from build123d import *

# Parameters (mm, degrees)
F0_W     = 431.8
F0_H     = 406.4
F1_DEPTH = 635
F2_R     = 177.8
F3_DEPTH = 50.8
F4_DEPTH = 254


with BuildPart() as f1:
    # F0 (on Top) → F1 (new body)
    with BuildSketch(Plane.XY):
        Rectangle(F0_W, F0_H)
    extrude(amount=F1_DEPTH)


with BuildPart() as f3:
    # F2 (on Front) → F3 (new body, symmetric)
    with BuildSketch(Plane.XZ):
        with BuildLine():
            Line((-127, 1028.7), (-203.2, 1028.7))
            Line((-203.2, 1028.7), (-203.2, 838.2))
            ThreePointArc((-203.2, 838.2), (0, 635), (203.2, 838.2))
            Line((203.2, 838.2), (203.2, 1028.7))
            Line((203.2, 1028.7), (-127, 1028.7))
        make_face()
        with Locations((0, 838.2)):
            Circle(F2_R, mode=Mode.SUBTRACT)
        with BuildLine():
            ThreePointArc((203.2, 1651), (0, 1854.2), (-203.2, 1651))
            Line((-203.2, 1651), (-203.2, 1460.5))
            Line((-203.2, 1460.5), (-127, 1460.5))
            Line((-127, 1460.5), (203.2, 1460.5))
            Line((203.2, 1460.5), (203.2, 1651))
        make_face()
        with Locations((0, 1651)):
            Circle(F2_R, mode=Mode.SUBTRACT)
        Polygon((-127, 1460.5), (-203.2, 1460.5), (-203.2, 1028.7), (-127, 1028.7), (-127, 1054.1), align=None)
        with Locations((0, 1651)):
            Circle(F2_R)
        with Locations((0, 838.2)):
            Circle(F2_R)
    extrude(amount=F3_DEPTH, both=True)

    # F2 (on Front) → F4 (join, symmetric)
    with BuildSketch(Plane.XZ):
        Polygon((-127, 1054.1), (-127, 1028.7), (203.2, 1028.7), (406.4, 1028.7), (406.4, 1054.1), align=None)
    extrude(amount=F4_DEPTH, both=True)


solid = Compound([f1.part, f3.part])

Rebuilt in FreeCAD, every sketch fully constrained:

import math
import FreeCAD as App
import Part
import Sketcher
from FreeCAD import Vector
Q = App.Units.Quantity


def add_polygon(sketch, points):
    """Adds a closed chain of lines whose ends are joined by coincident constraints."""
    first, n = sketch.GeometryCount, len(points)
    for a, b in zip(points, points[1:] + points[:1]):
        sketch.addGeometry(Part.LineSegment(App.Vector(*a, 0), App.Vector(*b, 0)), False)
    for i in range(n):
        sketch.addConstraint(Sketcher.Constraint("Coincident", first + i, 2, first + (i + 1) % n, 1))

doc = App.newDocument("Part")
body = doc.addObject("PartDesign::Body", "Body")

# Sketch on XY plane
sketch1 = doc.addObject("Sketcher::SketchObject", "Sketch")
body.addObject(sketch1)
sketch1.AttachmentSupport = (doc.XY_Plane, [""])
sketch1.MapMode = "FlatFace"
add_polygon(sketch1, [(-216, 203), (-216, -203), (216, -203), (216, 203)])  # lines 0-3
sketch1.addConstraint(Sketcher.Constraint("Vertical", 0))
sketch1.addConstraint(Sketcher.Constraint("Horizontal", 1))
sketch1.addConstraint(Sketcher.Constraint("Vertical", 2))
sketch1.addConstraint(Sketcher.Constraint("Horizontal", 3))
sketch1.addConstraint(Sketcher.Constraint("Symmetric", 0, 2, 2, 2, -1, 1))
sketch1.addConstraint(Sketcher.Constraint("DistanceX", 1, 1, 1, 2, Q("17 in")))
sketch1.addConstraint(Sketcher.Constraint("DistanceY", 0, 2, 0, 1, Q("16 in")))
pad1 = doc.addObject("PartDesign::Pad", "Pad")
body.addObject(pad1)
pad1.Profile = sketch1
pad1.Length = Q("25 in")
body2 = doc.addObject("PartDesign::Body", "Body001")

# Sketch on XZ plane
sketch2 = doc.addObject("Sketcher::SketchObject", "Sketch001")
body2.addObject(sketch2)
sketch2.AttachmentSupport = (doc.getObject("XZ_Plane001"), [""])
sketch2.MapMode = "FlatFace"
sketch2.addGeometry(Part.ArcOfCircle(Part.Circle(Vector(0, 838, 0), Vector(0, 0, 1), 203), math.radians(180), math.radians(360)), False)
sketch2.addGeometry(Part.LineSegment(Vector(203, 838, 0), Vector(203, 1029, 0)), False)
sketch2.addGeometry(Part.LineSegment(Vector(203, 1029, 0), Vector(-127, 1029, 0)), False)
sketch2.addGeometry(Part.LineSegment(Vector(-127, 1029, 0), Vector(-127, 1460, 0)), False)
sketch2.addGeometry(Part.LineSegment(Vector(-127, 1460, 0), Vector(203, 1460, 0)), False)
sketch2.addGeometry(Part.LineSegment(Vector(203, 1460, 0), Vector(203, 1651, 0)), False)
sketch2.addGeometry(Part.ArcOfCircle(Part.Circle(Vector(0, 1651, 0), Vector(0, 0, 1), 203), math.radians(0), math.radians(180)), False)
sketch2.addGeometry(Part.LineSegment(Vector(-203, 1651, 0), Vector(-203, 838, 0)), False)
sketch2.addConstraint(Sketcher.Constraint("Tangent", 0, 2, 1, 1))
sketch2.addConstraint(Sketcher.Constraint("Coincident", 1, 2, 2, 1))
sketch2.addConstraint(Sketcher.Constraint("Coincident", 2, 2, 3, 1))
sketch2.addConstraint(Sketcher.Constraint("Coincident", 3, 2, 4, 1))
sketch2.addConstraint(Sketcher.Constraint("Coincident", 4, 2, 5, 1))
sketch2.addConstraint(Sketcher.Constraint("Tangent", 5, 2, 6, 1))
sketch2.addConstraint(Sketcher.Constraint("Tangent", 6, 2, 7, 1))
sketch2.addConstraint(Sketcher.Constraint("Tangent", 7, 2, 0, 1))
sketch2.addConstraint(Sketcher.Constraint("Vertical", 1))
sketch2.addConstraint(Sketcher.Constraint("Horizontal", 2))
sketch2.addConstraint(Sketcher.Constraint("Vertical", 3))
sketch2.addConstraint(Sketcher.Constraint("Horizontal", 4))
sketch2.addConstraint(Sketcher.Constraint("Vertical", 5))
sketch2.addConstraint(Sketcher.Constraint("Vertical", 7))
sketch2.addConstraint(Sketcher.Constraint("Equal", 0, 6))
sketch2.addConstraint(Sketcher.Constraint("PointOnObject", 0, 3, -2))
sketch2.addConstraint(Sketcher.Constraint("Equal", 1, 5))
sketch2.addConstraint(Sketcher.Constraint("Radius", 0, Q("8 in")))
sketch2.addConstraint(Sketcher.Constraint("DistanceX", 2, 2, 2, 1, Q("13 in")))
sketch2.addConstraint(Sketcher.Constraint("DistanceY", 3, 1, 3, 2, Q("17 in")))
sketch2.addConstraint(Sketcher.Constraint("DistanceY", 7, 2, 7, 1, Q("32 in")))
sketch2.addConstraint(Sketcher.Constraint("DistanceY", -1, 1, 0, 3, Q("33 in")))
pad2 = doc.addObject("PartDesign::Pad", "Pad001")
body2.addObject(pad2)
pad2.Profile = sketch2
pad2.Length = Q("4 in")
pad2.Midplane = True

# Sketch on XZ plane
sketch3 = doc.addObject("Sketcher::SketchObject", "Sketch002")
body2.addObject(sketch3)
sketch3.AttachmentSupport = (doc.getObject("XZ_Plane001"), [""])
sketch3.MapMode = "FlatFace"
add_polygon(sketch3, [(-127, 1054), (-127, 1029), (406, 1029), (406, 1054)])  # lines 0-3
sketch3.addConstraint(Sketcher.Constraint("Vertical", 0))
sketch3.addConstraint(Sketcher.Constraint("Horizontal", 1))
sketch3.addConstraint(Sketcher.Constraint("Vertical", 2))
sketch3.addConstraint(Sketcher.Constraint("Horizontal", 3))
sketch3.addConstraint(Sketcher.Constraint("DistanceX", 1, 1, 1, 2, Q("21 in")))
sketch3.addConstraint(Sketcher.Constraint("DistanceY", 0, 2, 0, 1, Q("1 in")))
sketch3.addConstraint(Sketcher.Constraint("DistanceX", 0, 2, -1, 1, Q("5 in")))
sketch3.addConstraint(Sketcher.Constraint("DistanceY", -1, 1, 0, 2, Q("40.5 in")))
pad3 = doc.addObject("PartDesign::Pad", "Pad002")
body2.addObject(pad3)
pad3.Profile = sketch3
pad3.Length = Q("20 in")
pad3.Midplane = True

doc.recompute()
